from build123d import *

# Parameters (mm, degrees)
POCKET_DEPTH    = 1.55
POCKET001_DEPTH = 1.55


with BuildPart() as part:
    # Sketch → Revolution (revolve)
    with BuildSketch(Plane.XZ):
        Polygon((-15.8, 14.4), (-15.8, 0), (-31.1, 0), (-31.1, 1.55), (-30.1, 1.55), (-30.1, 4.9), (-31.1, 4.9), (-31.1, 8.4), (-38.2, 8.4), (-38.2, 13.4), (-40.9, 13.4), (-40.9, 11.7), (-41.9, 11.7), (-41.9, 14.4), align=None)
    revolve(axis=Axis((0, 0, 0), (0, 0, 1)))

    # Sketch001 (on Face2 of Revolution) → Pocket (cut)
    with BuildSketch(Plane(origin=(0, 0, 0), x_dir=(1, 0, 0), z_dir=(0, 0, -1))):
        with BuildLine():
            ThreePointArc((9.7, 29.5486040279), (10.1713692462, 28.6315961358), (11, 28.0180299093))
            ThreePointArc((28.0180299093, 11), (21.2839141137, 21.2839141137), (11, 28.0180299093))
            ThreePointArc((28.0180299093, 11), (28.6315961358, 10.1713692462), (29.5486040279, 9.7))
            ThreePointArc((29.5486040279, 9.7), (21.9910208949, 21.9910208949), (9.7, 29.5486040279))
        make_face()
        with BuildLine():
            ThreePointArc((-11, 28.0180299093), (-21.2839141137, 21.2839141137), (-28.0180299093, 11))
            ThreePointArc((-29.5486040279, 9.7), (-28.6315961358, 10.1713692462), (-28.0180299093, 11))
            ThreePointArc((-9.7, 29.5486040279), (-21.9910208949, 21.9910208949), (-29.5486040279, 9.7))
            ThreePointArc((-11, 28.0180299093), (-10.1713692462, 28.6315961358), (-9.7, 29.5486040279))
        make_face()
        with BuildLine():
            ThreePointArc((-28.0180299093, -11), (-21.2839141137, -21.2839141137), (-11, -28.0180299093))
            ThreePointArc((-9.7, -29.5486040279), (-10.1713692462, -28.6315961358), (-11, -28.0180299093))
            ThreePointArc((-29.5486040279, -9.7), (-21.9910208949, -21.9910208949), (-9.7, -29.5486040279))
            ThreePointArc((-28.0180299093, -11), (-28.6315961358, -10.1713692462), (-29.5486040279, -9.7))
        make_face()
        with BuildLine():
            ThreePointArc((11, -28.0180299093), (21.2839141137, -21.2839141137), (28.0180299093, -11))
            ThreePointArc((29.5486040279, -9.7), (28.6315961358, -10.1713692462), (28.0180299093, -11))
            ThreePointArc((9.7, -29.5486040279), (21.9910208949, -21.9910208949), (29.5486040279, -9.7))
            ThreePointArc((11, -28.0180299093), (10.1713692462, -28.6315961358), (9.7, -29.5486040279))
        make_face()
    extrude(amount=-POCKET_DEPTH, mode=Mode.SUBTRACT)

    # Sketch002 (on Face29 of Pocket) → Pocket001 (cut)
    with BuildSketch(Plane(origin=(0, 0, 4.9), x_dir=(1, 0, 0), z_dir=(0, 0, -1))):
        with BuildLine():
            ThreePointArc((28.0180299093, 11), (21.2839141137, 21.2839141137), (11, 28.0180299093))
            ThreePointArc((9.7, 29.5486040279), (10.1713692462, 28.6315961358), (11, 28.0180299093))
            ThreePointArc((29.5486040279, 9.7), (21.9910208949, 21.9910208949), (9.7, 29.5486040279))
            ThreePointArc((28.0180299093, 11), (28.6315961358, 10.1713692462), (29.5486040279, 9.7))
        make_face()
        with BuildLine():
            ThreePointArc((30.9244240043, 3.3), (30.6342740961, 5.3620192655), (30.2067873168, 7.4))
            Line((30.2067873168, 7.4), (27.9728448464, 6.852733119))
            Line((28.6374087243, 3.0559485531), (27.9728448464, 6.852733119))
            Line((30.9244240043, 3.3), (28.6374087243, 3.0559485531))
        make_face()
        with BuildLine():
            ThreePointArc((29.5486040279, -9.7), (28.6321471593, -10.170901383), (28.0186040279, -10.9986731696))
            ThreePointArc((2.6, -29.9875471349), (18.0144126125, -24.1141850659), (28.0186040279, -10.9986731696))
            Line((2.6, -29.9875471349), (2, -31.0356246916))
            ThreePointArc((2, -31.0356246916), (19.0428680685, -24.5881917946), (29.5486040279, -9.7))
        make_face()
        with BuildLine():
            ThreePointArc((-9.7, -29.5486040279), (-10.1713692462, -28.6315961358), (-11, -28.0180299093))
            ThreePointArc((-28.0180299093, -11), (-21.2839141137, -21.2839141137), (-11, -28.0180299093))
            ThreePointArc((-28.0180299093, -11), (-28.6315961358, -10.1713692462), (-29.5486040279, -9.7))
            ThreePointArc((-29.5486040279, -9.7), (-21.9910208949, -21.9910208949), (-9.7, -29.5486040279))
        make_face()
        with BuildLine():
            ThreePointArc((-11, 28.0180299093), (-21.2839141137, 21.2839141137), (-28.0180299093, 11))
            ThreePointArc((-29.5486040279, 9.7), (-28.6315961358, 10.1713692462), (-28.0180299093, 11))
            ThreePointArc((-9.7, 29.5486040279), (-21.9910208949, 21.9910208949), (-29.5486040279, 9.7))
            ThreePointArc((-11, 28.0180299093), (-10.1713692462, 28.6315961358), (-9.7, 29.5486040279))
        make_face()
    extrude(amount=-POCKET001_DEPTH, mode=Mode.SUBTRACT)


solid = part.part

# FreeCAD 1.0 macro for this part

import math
import FreeCAD as App
import Part
import Sketcher
Q = App.Units.Quantity


def add_polygon(sketch, points):
    """Adds a closed chain of lines whose ends are joined by coincident constraints."""
    first, n = sketch.GeometryCount, len(points)
    for a, b in zip(points, points[1:] + points[:1]):
        sketch.addGeometry(Part.LineSegment(App.Vector(*a, 0), App.Vector(*b, 0)), False)
    for i in range(n):
        sketch.addConstraint(Sketcher.Constraint("Coincident", first + i, 2, first + (i + 1) % n, 1))

doc = App.newDocument("Part")
body = doc.addObject("PartDesign::Body", "Body")

sketch1 = body.newObject("Sketcher::SketchObject", "Sketch")
sketch1.AttachmentSupport = (doc.getObject("XZ_Plane"), [""])
sketch1.MapMode = "FlatFace"
add_polygon(sketch1, [(-15.8, 0), (-15.8, 14.4), (-41.9, 14.4), (-41.9, 11.7), (-40.9, 11.7), (-40.9, 13.4), (-38.2, 13.4), (-38.2, 8.4), (-31.1, 8.4), (-31.1, 4.9), (-30.1, 4.9), (-30.1, 1.6), (-31.1, 1.6), (-31.1, 0)])
sketch1.addConstraint([
    Sketcher.Constraint("Vertical", 0),
    Sketcher.Constraint("Horizontal", 1),
    Sketcher.Constraint("Vertical", 2),
    Sketcher.Constraint("Horizontal", 3),
    Sketcher.Constraint("Vertical", 4),
    Sketcher.Constraint("Horizontal", 5),
    Sketcher.Constraint("Vertical", 6),
    Sketcher.Constraint("Horizontal", 7),
    Sketcher.Constraint("Vertical", 8),
    Sketcher.Constraint("Horizontal", 9),
    Sketcher.Constraint("Vertical", 10),
    Sketcher.Constraint("Horizontal", 11),
    Sketcher.Constraint("Vertical", 12),
    Sketcher.Constraint("Horizontal", 13),
    Sketcher.Constraint("PointOnObject", 12, 2, -1),
    Sketcher.Constraint("Vertical", 8, 2, 11, 2),
    Sketcher.Constraint("Equal", 3, 9),
    Sketcher.Constraint("Equal", 5, 2),
    Sketcher.Constraint("DistanceX", 3, 1, 3, 2, Q("1 mm")),
    Sketcher.Constraint("DistanceY", 6, 2, 6, 1, Q("5 mm")),
    Sketcher.Constraint("DistanceX", 1, 2, 1, 1, Q("26.1 mm")),
    Sketcher.Constraint("DistanceX", 5, 1, 5, 2, Q("2.7 mm")),
    Sketcher.Constraint("DistanceX", 7, 1, 7, 2, Q("7.1 mm")),
    Sketcher.Constraint("DistanceY", 0, 1, 0, 2, Q("14.4 mm")),
    Sketcher.Constraint("DistanceY", 4, 1, 4, 2, Q("1.7 mm")),
    Sketcher.Constraint("DistanceY", 8, 2, 8, 1, Q("3.5 mm")),
    Sketcher.Constraint("DistanceY", 10, 2, 10, 1, Q("3.35 mm")),
    Sketcher.Constraint("DistanceX", 0, 2, -1, 1, Q("15.8 mm")),
])
revolution = body.newObject("PartDesign::Revolution", "Revolution")
revolution.Profile = sketch1
revolution.ReferenceAxis = (sketch1, ["V_Axis"])
revolution.Angle = 360

sketch2 = body.newObject("Sketcher::SketchObject", "Sketch001")
sketch2.AttachmentSupport = (doc.getObject("XY_Plane"), [""])
sketch2.MapMode = "FlatFace"
sketch2.addGeometry([
    Part.ArcOfCircle(Part.Circle(App.Vector(11.9, -30.1, 0), App.Vector(0, 0, 1), 2.3), math.radians(113), math.radians(166)),
    Part.ArcOfCircle(Part.Circle(App.Vector(0, 0, 0), App.Vector(0, 0, 1), 30.1), math.radians(-69), math.radians(-21)),
    Part.ArcOfCircle(Part.Circle(App.Vector(30.1, -11.9, 0), App.Vector(0, 0, 1), 2.3), math.radians(104), math.radians(157)),
    Part.ArcOfCircle(Part.Circle(App.Vector(0, 0, 0), App.Vector(0, 0, 1), 31.1), math.radians(-72), math.radians(-18)),
    Part.ArcOfCircle(Part.Circle(App.Vector(0, 0, 0), App.Vector(0, 0, 1), 30.1), math.radians(-159), math.radians(-111)),
    Part.ArcOfCircle(Part.Circle(App.Vector(-11.9, -30.1, 0), App.Vector(0, 0, 1), 2.3), math.radians(14), math.radians(67)),
    Part.ArcOfCircle(Part.Circle(App.Vector(0, 0, 0), App.Vector(0, 0, 1), 31.1), math.radians(-162), math.radians(-108)),
    Part.ArcOfCircle(Part.Circle(App.Vector(-30.1, -11.9, 0), App.Vector(0, 0, 1), 2.3), math.radians(23), math.radians(76)),
    Part.ArcOfCircle(Part.Circle(App.Vector(0, 0, 0), App.Vector(0, 0, 1), 30.1), math.radians(111), math.radians(159)),
    Part.ArcOfCircle(Part.Circle(App.Vector(-30.1, 11.9, 0), App.Vector(0, 0, 1), 2.3), math.radians(-76), math.radians(-23)),
    Part.ArcOfCircle(Part.Circle(App.Vector(0, 0, 0), App.Vector(0, 0, 1), 31.1), math.radians(108), math.radians(162)),
    Part.ArcOfCircle(Part.Circle(App.Vector(-11.9, 30.1, 0), App.Vector(0, 0, 1), 2.3), math.radians(-67), math.radians(-14)),
    Part.ArcOfCircle(Part.Circle(App.Vector(0, 0, 0), App.Vector(0, 0, 1), 30.1), math.radians(21), math.radians(69)),
    Part.ArcOfCircle(Part.Circle(App.Vector(11.9, 30.1, 0), App.Vector(0, 0, 1), 2.3), math.radians(-166), math.radians(-113)),
    Part.ArcOfCircle(Part.Circle(App.Vector(0, 0, 0), App.Vector(0, 0, 1), 31.1), math.radians(18), math.radians(72)),
    Part.ArcOfCircle(Part.Circle(App.Vector(30.1, 11.9, 0), App.Vector(0, 0, 1), 2.3), math.radians(-157), math.radians(-104)),
], False)
sketch2.addConstraint([
    Sketcher.Constraint("Coincident", 0, 1, 1, 1),
    Sketcher.Constraint("Coincident", 1, 2, 2, 2),
    Sketcher.Constraint("Coincident", 2, 1, 3, 2),
    Sketcher.Constraint("Coincident", 3, 1, 0, 2),
    Sketcher.Constraint("Coincident", 4, 2, 5, 2),
    Sketcher.Constraint("Coincident", 5, 1, 6, 2),
    Sketcher.Constraint("Coincident", 6, 1, 7, 2),
    Sketcher.Constraint("Coincident", 7, 1, 4, 1),
    Sketcher.Constraint("Coincident", 8, 2, 9, 2),
    Sketcher.Constraint("Coincident", 9, 1, 10, 2),
    Sketcher.Constraint("Coincident", 10, 1, 11, 2),
    Sketcher.Constraint("Coincident", 11, 1, 8, 1),
    Sketcher.Constraint("Coincident", 12, 2, 13, 2),
    Sketcher.Constraint("Coincident", 13, 1, 14, 2),
    Sketcher.Constraint("Coincident", 14, 1, 15, 2),
    Sketcher.Constraint("Coincident", 15, 1, 12, 1),
    Sketcher.Constraint("Coincident", 1, 3, -1, 1),
    Sketcher.Constraint("Coincident", 3, 3, -1, 1),
    Sketcher.Constraint("Coincident", 4, 3, -1, 1),
    Sketcher.Constraint("Coincident", 6, 3, -1, 1),
    Sketcher.Constraint("Coincident", 8, 3, -1, 1),
    Sketcher.Constraint("Coincident", 10, 3, -1, 1),
    Sketcher.Constraint("Coincident", 12, 3, -1, 1),
    Sketcher.Constraint("Coincident", 14, 3, -1, 1),
    Sketcher.Constraint("Equal", 0, 2),
    Sketcher.Constraint("Equal", 1, 4),
    Sketcher.Constraint("Equal", 2, 5),
    Sketcher.Constraint("Equal", 3, 6),
    Sketcher.Constraint("Equal", 5, 7),
    Sketcher.Constraint("Equal", 4, 8),
    Sketcher.Constraint("Equal", 7, 9),
    Sketcher.Constraint("Equal", 6, 10),
    Sketcher.Constraint("Equal", 9, 11),
    Sketcher.Constraint("Equal", 8, 12),
    Sketcher.Constraint("Equal", 11, 13),
    Sketcher.Constraint("Equal", 10, 14),
    Sketcher.Constraint("Equal", 13, 15),
    Sketcher.Constraint("Symmetric", 2, 3, 9, 3, -1, 1),
    Sketcher.Constraint("Symmetric", 0, 3, 11, 3, -1, 1),
    Sketcher.Constraint("Symmetric", 5, 3, 13, 3, -1, 1),
    Sketcher.Constraint("Symmetric", 7, 3, 15, 3, -1, 1),
    Sketcher.Constraint("Symmetric", 0, 3, 5, 3, -2),
    Sketcher.Constraint("Symmetric", 2, 3, 7, 3, -2),
    Sketcher.Constraint("Radius", 1, Q("30.1 mm")),
    Sketcher.Constraint("Radius", 3, Q("31.1 mm")),
    Sketcher.Constraint("DistanceX", -1, 1, 0, 1, Q("11 mm")),
    Sketcher.Constraint("DistanceY", 1, 2, -1, 1, Q("11 mm")),
    Sketcher.Constraint("DistanceX", -1, 1, 0, 3, Q("11.9 mm")),
    Sketcher.Constraint("DistanceY", 2, 3, -1, 1, Q("11.9 mm")),
    Sketcher.Constraint("DistanceY", 2, 1, -1, 1, Q("9.7 mm")),
])
pocket1 = body.newObject("PartDesign::Pocket", "Pocket")
pocket1.Profile = sketch2
pocket1.Length = 1.55
pocket1.Reversed = True

sketch3 = body.newObject("Sketcher::SketchObject", "Sketch002")
sketch3.AttachmentSupport = (doc.getObject("XY_Plane"), [""])
sketch3.MapMode = "FlatFace"
sketch3.AttachmentOffset = App.Placement(App.Vector(0, 0, 4.9), App.Rotation())
sketch3.addGeometry([
    Part.ArcOfCircle(Part.Circle(App.Vector(0, 0, 0), App.Vector(0, 0, 1), 30.1), math.radians(-69), math.radians(-21)),
    Part.ArcOfCircle(Part.Circle(App.Vector(30.1, -11.9, 0), App.Vector(0, 0, 1), 2.3), math.radians(104), math.radians(157)),
    Part.ArcOfCircle(Part.Circle(App.Vector(0, 0, 0), App.Vector(0, 0, 1), 31.1), math.radians(-72), math.radians(-18)),
    Part.ArcOfCircle(Part.Circle(App.Vector(11.9, -30.1, 0), App.Vector(0, 0, 1), 2.3), math.radians(113), math.radians(166)),
    Part.ArcOfCircle(Part.Circle(App.Vector(0, 0, 0), App.Vector(0, 0, 1), 31.1), math.radians(-13.77), math.radians(-6.09)),
    Part.LineSegment(App.Vector(30.2, -7.4, 0), App.Vector(28, -6.9, 0)),
    Part.LineSegment(App.Vector(28, -6.9, 0), App.Vector(28.6, -3.1, 0)),
    Part.LineSegment(App.Vector(28.6, -3.1, 0), App.Vector(30.9, -3.3, 0)),
    Part.ArcOfCircle(Part.Circle(App.Vector(30.1, 11.9, 0), App.Vector(0, 0, 1), 2.3), math.radians(-157), math.radians(-104)),
    Part.ArcOfCircle(Part.Circle(App.Vector(0, 0, 0), App.Vector(0, 0, 1), 30.1), math.radians(21), math.radians(85)),
    Part.LineSegment(App.Vector(2.6, 30, 0), App.Vector(2, 31, 0)),
    Part.ArcOfCircle(Part.Circle(App.Vector(0, 0, 0), App.Vector(0, 0, 1), 31.1), math.radians(18), math.radians(86)),
    Part.ArcOfCircle(Part.Circle(App.Vector(-11.9, 30.1, 0), App.Vector(0, 0, 1), 2.3), math.radians(-67), math.radians(-14)),
    Part.ArcOfCircle(Part.Circle(App.Vector(0, 0, 0), App.Vector(0, 0, 1), 30.1), math.radians(111), math.radians(159)),
    Part.ArcOfCircle(Part.Circle(App.Vector(-30.1, 11.9, 0), App.Vector(0, 0, 1), 2.3), math.radians(-76), math.radians(-23)),
    Part.ArcOfCircle(Part.Circle(App.Vector(0, 0, 0), App.Vector(0, 0, 1), 31.1), math.radians(108), math.radians(162)),
    Part.ArcOfCircle(Part.Circle(App.Vector(0, 0, 0), App.Vector(0, 0, 1), 30.1), math.radians(-159), math.radians(-111)),
    Part.ArcOfCircle(Part.Circle(App.Vector(-11.9, -30.1, 0), App.Vector(0, 0, 1), 2.3), math.radians(14), math.radians(67)),
    Part.ArcOfCircle(Part.Circle(App.Vector(0, 0, 0), App.Vector(0, 0, 1), 31.1), math.radians(-162), math.radians(-108)),
    Part.ArcOfCircle(Part.Circle(App.Vector(-30.1, -11.9, 0), App.Vector(0, 0, 1), 2.3), math.radians(23), math.radians(76)),
], False)
sketch3.addConstraint([
    Sketcher.Constraint("Coincident", 0, 2, 1, 2),
    Sketcher.Constraint("Coincident", 1, 1, 2, 2),
    Sketcher.Constraint("Coincident", 2, 1, 3, 2),
    Sketcher.Constraint("Coincident", 3, 1, 0, 1),
    Sketcher.Constraint("Coincident", 4, 1, 5, 1),
    Sketcher.Constraint("Coincident", 5, 2, 6, 1),
    Sketcher.Constraint("Coincident", 6, 2, 7, 1),
    Sketcher.Constraint("Coincident", 7, 2, 4, 2),
    Sketcher.Constraint("Coincident", 8, 1, 9, 1),
    Sketcher.Constraint("Coincident", 9, 2, 10, 1),
    Sketcher.Constraint("Coincident", 10, 2, 11, 2),
    Sketcher.Constraint("Coincident", 11, 1, 8, 2),
    Sketcher.Constraint("Coincident", 12, 1, 13, 1),
    Sketcher.Constraint("Coincident", 13, 2, 14, 2),
    Sketcher.Constraint("Coincident", 14, 1, 15, 2),
    Sketcher.Constraint("Coincident", 15, 1, 12, 2),
    Sketcher.Constraint("Coincident", 16, 2, 17, 2),
    Sketcher.Constraint("Coincident", 17, 1, 18, 2),
    Sketcher.Constraint("Coincident", 18, 1, 19, 2),
    Sketcher.Constraint("Coincident", 19, 1, 16, 1),
    Sketcher.Constraint("Coincident", 0, 3, -1, 1),
    Sketcher.Constraint("Coincident", 2, 3, -1, 1),
    Sketcher.Constraint("Coincident", 4, 3, -1, 1),
    Sketcher.Constraint("Coincident", 9, 3, -1, 1),
    Sketcher.Constraint("Coincident", 11, 3, -1, 1),
    Sketcher.Constraint("Coincident", 13, 3, -1, 1),
    Sketcher.Constraint("Coincident", 15, 3, -1, 1),
    Sketcher.Constraint("Coincident", 16, 3, -1, 1),
    Sketcher.Constraint("Coincident", 18, 3, -1, 1),
    Sketcher.Constraint("Equal", 1, 3),
    Sketcher.Constraint("Equal", 2, 4),
    Sketcher.Constraint("Equal", 3, 8),
    Sketcher.Constraint("Equal", 4, 11),
    Sketcher.Constraint("Equal", 8, 12),
    Sketcher.Constraint("Equal", 0, 13),
    Sketcher.Constraint("Equal", 12, 14),
    Sketcher.Constraint("Equal", 11, 15),
    Sketcher.Constraint("Equal", 13, 16),
    Sketcher.Constraint("Equal", 14, 17),
    Sketcher.Constraint("Equal", 15, 18),
    Sketcher.Constraint("Equal", 17, 19),
    Sketcher.Constraint("Symmetric", 3, 3, 12, 3, -1, 1),
    Sketcher.Constraint("Symmetric", 1, 3, 14, 3, -1, 1),
    Sketcher.Constraint("Symmetric", 8, 3, 19, 3, -1, 1),
    Sketcher.Constraint("Symmetric", 8, 3, 14, 3, -2),
    Sketcher.Constraint("Symmetric", 3, 3, 17, 3, -2),
    Sketcher.Constraint("Equal", 5, 7),
    Sketcher.Constraint("Radius", 0, Q("30.1 mm")),
    Sketcher.Constraint("Radius", 2, Q("31.1 mm")),
    Sketcher.Constraint("DistanceY", 0, 2, -1, 1, Q("11 mm")),
    Sketcher.Constraint("DistanceX", -1, 1, 3, 1, Q("11 mm")),
    Sketcher.Constraint("DistanceX", -1, 1, 10, 2, Q("2 mm")),
    Sketcher.Constraint("DistanceY", 7, 2, 11, 1, Q("13 mm")),
    Sketcher.Constraint("Distance", 5, Q("2.3 mm")),
    Sketcher.Constraint("DistanceY", 1, 3, -1, 1, Q("11.9 mm")),
    Sketcher.Constraint("DistanceX", -1, 1, 3, 3, Q("11.9 mm")),
    Sketcher.Constraint("DistanceY", 1, 1, -1, 1, Q("9.7 mm")),
    Sketcher.Constraint("DistanceY", 4, 1, -1, 1, Q("7.4 mm")),
    Sketcher.Constraint("DistanceX", -1, 1, 9, 2, Q("2.6 mm")),
    Sketcher.Constraint("Radius", 9, Q("30.10005 mm")),
    Sketcher.Constraint("DistanceX", -1, 1, 6, 2, Q("28.637409 mm")),
    Sketcher.Constraint("DistanceX", 5, 2, 1, 1, Q("1.575759 mm")),
])
pocket2 = body.newObject("PartDesign::Pocket", "Pocket001")
pocket2.Profile = sketch3
pocket2.Length = 1.55
pocket2.Reversed = True

doc.recompute()
